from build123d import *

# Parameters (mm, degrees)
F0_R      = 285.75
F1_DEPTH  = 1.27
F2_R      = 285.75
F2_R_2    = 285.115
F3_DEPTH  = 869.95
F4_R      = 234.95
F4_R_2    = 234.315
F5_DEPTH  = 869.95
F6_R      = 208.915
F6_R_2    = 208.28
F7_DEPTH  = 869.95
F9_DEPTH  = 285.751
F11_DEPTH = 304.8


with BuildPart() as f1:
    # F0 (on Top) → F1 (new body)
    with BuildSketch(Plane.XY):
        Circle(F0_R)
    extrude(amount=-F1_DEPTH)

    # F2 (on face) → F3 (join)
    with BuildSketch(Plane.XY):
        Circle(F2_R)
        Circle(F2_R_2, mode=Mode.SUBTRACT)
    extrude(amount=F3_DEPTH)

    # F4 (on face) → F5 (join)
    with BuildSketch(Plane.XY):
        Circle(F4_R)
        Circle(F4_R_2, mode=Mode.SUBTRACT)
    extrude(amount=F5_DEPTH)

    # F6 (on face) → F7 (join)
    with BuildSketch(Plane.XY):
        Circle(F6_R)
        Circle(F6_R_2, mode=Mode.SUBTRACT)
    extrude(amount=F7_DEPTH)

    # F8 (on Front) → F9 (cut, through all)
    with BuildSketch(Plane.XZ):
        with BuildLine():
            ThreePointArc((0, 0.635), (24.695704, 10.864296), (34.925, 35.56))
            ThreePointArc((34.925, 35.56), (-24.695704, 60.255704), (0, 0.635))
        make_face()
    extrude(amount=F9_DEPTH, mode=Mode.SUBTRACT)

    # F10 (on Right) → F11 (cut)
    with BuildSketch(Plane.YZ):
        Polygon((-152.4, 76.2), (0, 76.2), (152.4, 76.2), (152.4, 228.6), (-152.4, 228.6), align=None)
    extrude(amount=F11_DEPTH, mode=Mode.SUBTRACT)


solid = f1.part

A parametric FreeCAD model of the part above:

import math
import FreeCAD as App
import Part
import Sketcher
Q = App.Units.Quantity


def add_polygon(sketch, points):
    """Adds a closed chain of lines whose ends are joined by coincident constraints."""
    first, n = sketch.GeometryCount, len(points)
    for a, b in zip(points, points[1:] + points[:1]):
        sketch.addGeometry(Part.LineSegment(App.Vector(*a, 0), App.Vector(*b, 0)), False)
    for i in range(n):
        sketch.addConstraint(Sketcher.Constraint("Coincident", first + i, 2, first + (i + 1) % n, 1))

doc = App.newDocument("Part")
params = doc.addObject("Spreadsheet::Sheet", "Params")
for row, (alias, value) in enumerate([
    ("sketch1_diameter", "22.5 in"),
    ("pad1_length", "0.05 in"),
    ("sketch2_diameter", "22.5 in"),
    ("sketch2_diameter2", "22.45 in"),
    ("pad2_length", "34.25 in"),
    ("sketch3_diameter", "18.5 in"),
    ("sketch3_diameter2", "18.45 in"),
    ("pad3_length", "34.25 in"),
    ("sketch4_diameter", "16.4 in"),
    ("sketch4_diameter2", "16.45 in"),
    ("pad4_length", "34.25 in"),
    ("sketch5_radius", "1.375 in"),
    ("sketch6_width", "12 in"),
    ("sketch6_height", "6 in"),
    ("pocket2_length", "12 in"),
], start=1):
    params.set(f"A{row}", alias)
    params.set(f"B{row}", "=" + value)
    params.setAlias(f"B{row}", alias)

body = doc.addObject("PartDesign::Body", "Body")

# Sketch on XY plane
sketch1 = body.newObject("Sketcher::SketchObject", "Sketch")
sketch1.AttachmentSupport = (doc.getObject("XY_Plane"), [""])
sketch1.MapMode = "FlatFace"
sketch1.addGeometry(Part.Circle(App.Vector(0, 0, 0), App.Vector(0, 0, 1), 286), False)
sketch1.addConstraint(Sketcher.Constraint("Coincident", 0, 3, -1, 1))
sketch1.addConstraint(Sketcher.Constraint("Diameter", 0, Q("22.5 in")))
sketch1.setExpression("Constraints[1]", "Params.sketch1_diameter")
pad1 = body.newObject("PartDesign::Pad", "Pad")
pad1.Profile = sketch1
pad1.setExpression("Length", "Params.pad1_length")
pad1.Reversed = True

# Sketch on XY plane
sketch2 = body.newObject("Sketcher::SketchObject", "Sketch001")
sketch2.AttachmentSupport = (doc.getObject("XY_Plane"), [""])
sketch2.MapMode = "FlatFace"
sketch2.addGeometry(Part.Circle(App.Vector(0, 0, 0), App.Vector(0, 0, 1), 286), False)
sketch2.addGeometry(Part.Circle(App.Vector(0, 0, 0), App.Vector(0, 0, 1), 285), False)
sketch2.addConstraint(Sketcher.Constraint("Coincident", 0, 3, -1, 1))
sketch2.addConstraint(Sketcher.Constraint("Coincident", 1, 3, -1, 1))
sketch2.addConstraint(Sketcher.Constraint("Diameter", 0, Q("22.5 in")))
sketch2.addConstraint(Sketcher.Constraint("Diameter", 1, Q("22.45 in")))
sketch2.setExpression("Constraints[2]", "Params.sketch2_diameter")
sketch2.setExpression("Constraints[3]", "Params.sketch2_diameter2")
pad2 = body.newObject("PartDesign::Pad", "Pad001")
pad2.Profile = sketch2
pad2.setExpression("Length", "Params.pad2_length")

# Sketch on XY plane
sketch3 = body.newObject("Sketcher::SketchObject", "Sketch002")
sketch3.AttachmentSupport = (doc.getObject("XY_Plane"), [""])
sketch3.MapMode = "FlatFace"
sketch3.addGeometry(Part.Circle(App.Vector(0, 0, 0), App.Vector(0, 0, 1), 235), False)
sketch3.addGeometry(Part.Circle(App.Vector(0, 0, 0), App.Vector(0, 0, 1), 234), False)
sketch3.addConstraint(Sketcher.Constraint("Coincident", 0, 3, -1, 1))
sketch3.addConstraint(Sketcher.Constraint("Coincident", 1, 3, -1, 1))
sketch3.addConstraint(Sketcher.Constraint("Diameter", 0, Q("18.5 in")))
sketch3.addConstraint(Sketcher.Constraint("Diameter", 1, Q("18.45 in")))
sketch3.setExpression("Constraints[2]", "Params.sketch3_diameter")
sketch3.setExpression("Constraints[3]", "Params.sketch3_diameter2")
pad3 = body.newObject("PartDesign::Pad", "Pad002")
pad3.Profile = sketch3
pad3.setExpression("Length", "Params.pad3_length")

# Sketch on XY plane
sketch4 = body.newObject("Sketcher::SketchObject", "Sketch003")
sketch4.AttachmentSupport = (doc.getObject("XY_Plane"), [""])
sketch4.MapMode = "FlatFace"
sketch4.addGeometry(Part.Circle(App.Vector(0, 0, 0), App.Vector(0, 0, 1), 209), False)
sketch4.addGeometry(Part.Circle(App.Vector(0, 0, 0), App.Vector(0, 0, 1), 208), False)
sketch4.addConstraint(Sketcher.Constraint("Coincident", 0, 3, -1, 1))
sketch4.addConstraint(Sketcher.Constraint("Coincident", 1, 3, -1, 1))
sketch4.addConstraint(Sketcher.Constraint("Diameter", 1, Q("16.4 in")))
sketch4.addConstraint(Sketcher.Constraint("Diameter", 0, Q("16.45 in")))
sketch4.setExpression("Constraints[2]", "Params.sketch4_diameter")
sketch4.setExpression("Constraints[3]", "Params.sketch4_diameter2")
pad4 = body.newObject("PartDesign::Pad", "Pad003")
pad4.Profile = sketch4
pad4.setExpression("Length", "Params.pad4_length")

# Sketch on XZ plane
sketch5 = body.newObject("Sketcher::SketchObject", "Sketch004")
sketch5.AttachmentSupport = (doc.getObject("XZ_Plane"), [""])
sketch5.MapMode = "FlatFace"
sketch5.addGeometry(Part.ArcOfCircle(Part.Circle(App.Vector(0, 36, 0), App.Vector(0, 0, 1), 35), math.radians(-90), math.radians(0)), False)
sketch5.addGeometry(Part.ArcOfCircle(Part.Circle(App.Vector(0, 36, 0), App.Vector(0, 0, 1), 35), math.radians(0), math.radians(270)), False)
sketch5.addConstraint(Sketcher.Constraint("Tangent", 0, 1, 1, 2))
sketch5.addConstraint(Sketcher.Constraint("Coincident", 1, 1, 0, 2))
sketch5.addConstraint(Sketcher.Constraint("PointOnObject", 0, 3, -2))
sketch5.addConstraint(Sketcher.Constraint("PointOnObject", 0, 1, -2))
sketch5.addConstraint(Sketcher.Constraint("Horizontal", 0, 3, 1, 1))
sketch5.addConstraint(Sketcher.Constraint("Radius", 0, Q("1.375 in")))
sketch5.addConstraint(Sketcher.Constraint("DistanceY", -1, 1, 0, 3, Q("1.4 in")))
sketch5.setExpression("Constraints[5]", "Params.sketch5_radius")
pocket1 = body.newObject("PartDesign::Pocket", "Pocket")
pocket1.Profile = sketch5
pocket1.Type = "ThroughAll"
pocket1.Reversed = True

# Sketch on YZ plane
sketch6 = body.newObject("Sketcher::SketchObject", "Sketch005")
sketch6.AttachmentSupport = (doc.getObject("YZ_Plane"), [""])
sketch6.MapMode = "FlatFace"
add_polygon(sketch6, [(-152, 76), (152, 76), (152, 229), (-152, 229)])  # lines 0-3
sketch6.addConstraint(Sketcher.Constraint("Horizontal", 0))
sketch6.addConstraint(Sketcher.Constraint("Vertical", 1))
sketch6.addConstraint(Sketcher.Constraint("Horizontal", 2))
sketch6.addConstraint(Sketcher.Constraint("Vertical", 3))
sketch6.addConstraint(Sketcher.Constraint("DistanceX", 0, 1, 0, 2, Q("12 in")))
sketch6.addConstraint(Sketcher.Constraint("DistanceY", 1, 1, 1, 2, Q("6 in")))
sketch6.addConstraint(Sketcher.Constraint("DistanceX", -1, 1, 0, 2, Q("6 in")))
sketch6.addConstraint(Sketcher.Constraint("DistanceY", -1, 1, 0, 2, Q("3 in")))
sketch6.setExpression("Constraints[8]", "Params.sketch6_width")
sketch6.setExpression("Constraints[9]", "Params.sketch6_height")
pocket2 = body.newObject("PartDesign::Pocket", "Pocket001")
pocket2.Profile = sketch6
pocket2.setExpression("Length", "Params.pocket2_length")
pocket2.Reversed = True

doc.recompute()
